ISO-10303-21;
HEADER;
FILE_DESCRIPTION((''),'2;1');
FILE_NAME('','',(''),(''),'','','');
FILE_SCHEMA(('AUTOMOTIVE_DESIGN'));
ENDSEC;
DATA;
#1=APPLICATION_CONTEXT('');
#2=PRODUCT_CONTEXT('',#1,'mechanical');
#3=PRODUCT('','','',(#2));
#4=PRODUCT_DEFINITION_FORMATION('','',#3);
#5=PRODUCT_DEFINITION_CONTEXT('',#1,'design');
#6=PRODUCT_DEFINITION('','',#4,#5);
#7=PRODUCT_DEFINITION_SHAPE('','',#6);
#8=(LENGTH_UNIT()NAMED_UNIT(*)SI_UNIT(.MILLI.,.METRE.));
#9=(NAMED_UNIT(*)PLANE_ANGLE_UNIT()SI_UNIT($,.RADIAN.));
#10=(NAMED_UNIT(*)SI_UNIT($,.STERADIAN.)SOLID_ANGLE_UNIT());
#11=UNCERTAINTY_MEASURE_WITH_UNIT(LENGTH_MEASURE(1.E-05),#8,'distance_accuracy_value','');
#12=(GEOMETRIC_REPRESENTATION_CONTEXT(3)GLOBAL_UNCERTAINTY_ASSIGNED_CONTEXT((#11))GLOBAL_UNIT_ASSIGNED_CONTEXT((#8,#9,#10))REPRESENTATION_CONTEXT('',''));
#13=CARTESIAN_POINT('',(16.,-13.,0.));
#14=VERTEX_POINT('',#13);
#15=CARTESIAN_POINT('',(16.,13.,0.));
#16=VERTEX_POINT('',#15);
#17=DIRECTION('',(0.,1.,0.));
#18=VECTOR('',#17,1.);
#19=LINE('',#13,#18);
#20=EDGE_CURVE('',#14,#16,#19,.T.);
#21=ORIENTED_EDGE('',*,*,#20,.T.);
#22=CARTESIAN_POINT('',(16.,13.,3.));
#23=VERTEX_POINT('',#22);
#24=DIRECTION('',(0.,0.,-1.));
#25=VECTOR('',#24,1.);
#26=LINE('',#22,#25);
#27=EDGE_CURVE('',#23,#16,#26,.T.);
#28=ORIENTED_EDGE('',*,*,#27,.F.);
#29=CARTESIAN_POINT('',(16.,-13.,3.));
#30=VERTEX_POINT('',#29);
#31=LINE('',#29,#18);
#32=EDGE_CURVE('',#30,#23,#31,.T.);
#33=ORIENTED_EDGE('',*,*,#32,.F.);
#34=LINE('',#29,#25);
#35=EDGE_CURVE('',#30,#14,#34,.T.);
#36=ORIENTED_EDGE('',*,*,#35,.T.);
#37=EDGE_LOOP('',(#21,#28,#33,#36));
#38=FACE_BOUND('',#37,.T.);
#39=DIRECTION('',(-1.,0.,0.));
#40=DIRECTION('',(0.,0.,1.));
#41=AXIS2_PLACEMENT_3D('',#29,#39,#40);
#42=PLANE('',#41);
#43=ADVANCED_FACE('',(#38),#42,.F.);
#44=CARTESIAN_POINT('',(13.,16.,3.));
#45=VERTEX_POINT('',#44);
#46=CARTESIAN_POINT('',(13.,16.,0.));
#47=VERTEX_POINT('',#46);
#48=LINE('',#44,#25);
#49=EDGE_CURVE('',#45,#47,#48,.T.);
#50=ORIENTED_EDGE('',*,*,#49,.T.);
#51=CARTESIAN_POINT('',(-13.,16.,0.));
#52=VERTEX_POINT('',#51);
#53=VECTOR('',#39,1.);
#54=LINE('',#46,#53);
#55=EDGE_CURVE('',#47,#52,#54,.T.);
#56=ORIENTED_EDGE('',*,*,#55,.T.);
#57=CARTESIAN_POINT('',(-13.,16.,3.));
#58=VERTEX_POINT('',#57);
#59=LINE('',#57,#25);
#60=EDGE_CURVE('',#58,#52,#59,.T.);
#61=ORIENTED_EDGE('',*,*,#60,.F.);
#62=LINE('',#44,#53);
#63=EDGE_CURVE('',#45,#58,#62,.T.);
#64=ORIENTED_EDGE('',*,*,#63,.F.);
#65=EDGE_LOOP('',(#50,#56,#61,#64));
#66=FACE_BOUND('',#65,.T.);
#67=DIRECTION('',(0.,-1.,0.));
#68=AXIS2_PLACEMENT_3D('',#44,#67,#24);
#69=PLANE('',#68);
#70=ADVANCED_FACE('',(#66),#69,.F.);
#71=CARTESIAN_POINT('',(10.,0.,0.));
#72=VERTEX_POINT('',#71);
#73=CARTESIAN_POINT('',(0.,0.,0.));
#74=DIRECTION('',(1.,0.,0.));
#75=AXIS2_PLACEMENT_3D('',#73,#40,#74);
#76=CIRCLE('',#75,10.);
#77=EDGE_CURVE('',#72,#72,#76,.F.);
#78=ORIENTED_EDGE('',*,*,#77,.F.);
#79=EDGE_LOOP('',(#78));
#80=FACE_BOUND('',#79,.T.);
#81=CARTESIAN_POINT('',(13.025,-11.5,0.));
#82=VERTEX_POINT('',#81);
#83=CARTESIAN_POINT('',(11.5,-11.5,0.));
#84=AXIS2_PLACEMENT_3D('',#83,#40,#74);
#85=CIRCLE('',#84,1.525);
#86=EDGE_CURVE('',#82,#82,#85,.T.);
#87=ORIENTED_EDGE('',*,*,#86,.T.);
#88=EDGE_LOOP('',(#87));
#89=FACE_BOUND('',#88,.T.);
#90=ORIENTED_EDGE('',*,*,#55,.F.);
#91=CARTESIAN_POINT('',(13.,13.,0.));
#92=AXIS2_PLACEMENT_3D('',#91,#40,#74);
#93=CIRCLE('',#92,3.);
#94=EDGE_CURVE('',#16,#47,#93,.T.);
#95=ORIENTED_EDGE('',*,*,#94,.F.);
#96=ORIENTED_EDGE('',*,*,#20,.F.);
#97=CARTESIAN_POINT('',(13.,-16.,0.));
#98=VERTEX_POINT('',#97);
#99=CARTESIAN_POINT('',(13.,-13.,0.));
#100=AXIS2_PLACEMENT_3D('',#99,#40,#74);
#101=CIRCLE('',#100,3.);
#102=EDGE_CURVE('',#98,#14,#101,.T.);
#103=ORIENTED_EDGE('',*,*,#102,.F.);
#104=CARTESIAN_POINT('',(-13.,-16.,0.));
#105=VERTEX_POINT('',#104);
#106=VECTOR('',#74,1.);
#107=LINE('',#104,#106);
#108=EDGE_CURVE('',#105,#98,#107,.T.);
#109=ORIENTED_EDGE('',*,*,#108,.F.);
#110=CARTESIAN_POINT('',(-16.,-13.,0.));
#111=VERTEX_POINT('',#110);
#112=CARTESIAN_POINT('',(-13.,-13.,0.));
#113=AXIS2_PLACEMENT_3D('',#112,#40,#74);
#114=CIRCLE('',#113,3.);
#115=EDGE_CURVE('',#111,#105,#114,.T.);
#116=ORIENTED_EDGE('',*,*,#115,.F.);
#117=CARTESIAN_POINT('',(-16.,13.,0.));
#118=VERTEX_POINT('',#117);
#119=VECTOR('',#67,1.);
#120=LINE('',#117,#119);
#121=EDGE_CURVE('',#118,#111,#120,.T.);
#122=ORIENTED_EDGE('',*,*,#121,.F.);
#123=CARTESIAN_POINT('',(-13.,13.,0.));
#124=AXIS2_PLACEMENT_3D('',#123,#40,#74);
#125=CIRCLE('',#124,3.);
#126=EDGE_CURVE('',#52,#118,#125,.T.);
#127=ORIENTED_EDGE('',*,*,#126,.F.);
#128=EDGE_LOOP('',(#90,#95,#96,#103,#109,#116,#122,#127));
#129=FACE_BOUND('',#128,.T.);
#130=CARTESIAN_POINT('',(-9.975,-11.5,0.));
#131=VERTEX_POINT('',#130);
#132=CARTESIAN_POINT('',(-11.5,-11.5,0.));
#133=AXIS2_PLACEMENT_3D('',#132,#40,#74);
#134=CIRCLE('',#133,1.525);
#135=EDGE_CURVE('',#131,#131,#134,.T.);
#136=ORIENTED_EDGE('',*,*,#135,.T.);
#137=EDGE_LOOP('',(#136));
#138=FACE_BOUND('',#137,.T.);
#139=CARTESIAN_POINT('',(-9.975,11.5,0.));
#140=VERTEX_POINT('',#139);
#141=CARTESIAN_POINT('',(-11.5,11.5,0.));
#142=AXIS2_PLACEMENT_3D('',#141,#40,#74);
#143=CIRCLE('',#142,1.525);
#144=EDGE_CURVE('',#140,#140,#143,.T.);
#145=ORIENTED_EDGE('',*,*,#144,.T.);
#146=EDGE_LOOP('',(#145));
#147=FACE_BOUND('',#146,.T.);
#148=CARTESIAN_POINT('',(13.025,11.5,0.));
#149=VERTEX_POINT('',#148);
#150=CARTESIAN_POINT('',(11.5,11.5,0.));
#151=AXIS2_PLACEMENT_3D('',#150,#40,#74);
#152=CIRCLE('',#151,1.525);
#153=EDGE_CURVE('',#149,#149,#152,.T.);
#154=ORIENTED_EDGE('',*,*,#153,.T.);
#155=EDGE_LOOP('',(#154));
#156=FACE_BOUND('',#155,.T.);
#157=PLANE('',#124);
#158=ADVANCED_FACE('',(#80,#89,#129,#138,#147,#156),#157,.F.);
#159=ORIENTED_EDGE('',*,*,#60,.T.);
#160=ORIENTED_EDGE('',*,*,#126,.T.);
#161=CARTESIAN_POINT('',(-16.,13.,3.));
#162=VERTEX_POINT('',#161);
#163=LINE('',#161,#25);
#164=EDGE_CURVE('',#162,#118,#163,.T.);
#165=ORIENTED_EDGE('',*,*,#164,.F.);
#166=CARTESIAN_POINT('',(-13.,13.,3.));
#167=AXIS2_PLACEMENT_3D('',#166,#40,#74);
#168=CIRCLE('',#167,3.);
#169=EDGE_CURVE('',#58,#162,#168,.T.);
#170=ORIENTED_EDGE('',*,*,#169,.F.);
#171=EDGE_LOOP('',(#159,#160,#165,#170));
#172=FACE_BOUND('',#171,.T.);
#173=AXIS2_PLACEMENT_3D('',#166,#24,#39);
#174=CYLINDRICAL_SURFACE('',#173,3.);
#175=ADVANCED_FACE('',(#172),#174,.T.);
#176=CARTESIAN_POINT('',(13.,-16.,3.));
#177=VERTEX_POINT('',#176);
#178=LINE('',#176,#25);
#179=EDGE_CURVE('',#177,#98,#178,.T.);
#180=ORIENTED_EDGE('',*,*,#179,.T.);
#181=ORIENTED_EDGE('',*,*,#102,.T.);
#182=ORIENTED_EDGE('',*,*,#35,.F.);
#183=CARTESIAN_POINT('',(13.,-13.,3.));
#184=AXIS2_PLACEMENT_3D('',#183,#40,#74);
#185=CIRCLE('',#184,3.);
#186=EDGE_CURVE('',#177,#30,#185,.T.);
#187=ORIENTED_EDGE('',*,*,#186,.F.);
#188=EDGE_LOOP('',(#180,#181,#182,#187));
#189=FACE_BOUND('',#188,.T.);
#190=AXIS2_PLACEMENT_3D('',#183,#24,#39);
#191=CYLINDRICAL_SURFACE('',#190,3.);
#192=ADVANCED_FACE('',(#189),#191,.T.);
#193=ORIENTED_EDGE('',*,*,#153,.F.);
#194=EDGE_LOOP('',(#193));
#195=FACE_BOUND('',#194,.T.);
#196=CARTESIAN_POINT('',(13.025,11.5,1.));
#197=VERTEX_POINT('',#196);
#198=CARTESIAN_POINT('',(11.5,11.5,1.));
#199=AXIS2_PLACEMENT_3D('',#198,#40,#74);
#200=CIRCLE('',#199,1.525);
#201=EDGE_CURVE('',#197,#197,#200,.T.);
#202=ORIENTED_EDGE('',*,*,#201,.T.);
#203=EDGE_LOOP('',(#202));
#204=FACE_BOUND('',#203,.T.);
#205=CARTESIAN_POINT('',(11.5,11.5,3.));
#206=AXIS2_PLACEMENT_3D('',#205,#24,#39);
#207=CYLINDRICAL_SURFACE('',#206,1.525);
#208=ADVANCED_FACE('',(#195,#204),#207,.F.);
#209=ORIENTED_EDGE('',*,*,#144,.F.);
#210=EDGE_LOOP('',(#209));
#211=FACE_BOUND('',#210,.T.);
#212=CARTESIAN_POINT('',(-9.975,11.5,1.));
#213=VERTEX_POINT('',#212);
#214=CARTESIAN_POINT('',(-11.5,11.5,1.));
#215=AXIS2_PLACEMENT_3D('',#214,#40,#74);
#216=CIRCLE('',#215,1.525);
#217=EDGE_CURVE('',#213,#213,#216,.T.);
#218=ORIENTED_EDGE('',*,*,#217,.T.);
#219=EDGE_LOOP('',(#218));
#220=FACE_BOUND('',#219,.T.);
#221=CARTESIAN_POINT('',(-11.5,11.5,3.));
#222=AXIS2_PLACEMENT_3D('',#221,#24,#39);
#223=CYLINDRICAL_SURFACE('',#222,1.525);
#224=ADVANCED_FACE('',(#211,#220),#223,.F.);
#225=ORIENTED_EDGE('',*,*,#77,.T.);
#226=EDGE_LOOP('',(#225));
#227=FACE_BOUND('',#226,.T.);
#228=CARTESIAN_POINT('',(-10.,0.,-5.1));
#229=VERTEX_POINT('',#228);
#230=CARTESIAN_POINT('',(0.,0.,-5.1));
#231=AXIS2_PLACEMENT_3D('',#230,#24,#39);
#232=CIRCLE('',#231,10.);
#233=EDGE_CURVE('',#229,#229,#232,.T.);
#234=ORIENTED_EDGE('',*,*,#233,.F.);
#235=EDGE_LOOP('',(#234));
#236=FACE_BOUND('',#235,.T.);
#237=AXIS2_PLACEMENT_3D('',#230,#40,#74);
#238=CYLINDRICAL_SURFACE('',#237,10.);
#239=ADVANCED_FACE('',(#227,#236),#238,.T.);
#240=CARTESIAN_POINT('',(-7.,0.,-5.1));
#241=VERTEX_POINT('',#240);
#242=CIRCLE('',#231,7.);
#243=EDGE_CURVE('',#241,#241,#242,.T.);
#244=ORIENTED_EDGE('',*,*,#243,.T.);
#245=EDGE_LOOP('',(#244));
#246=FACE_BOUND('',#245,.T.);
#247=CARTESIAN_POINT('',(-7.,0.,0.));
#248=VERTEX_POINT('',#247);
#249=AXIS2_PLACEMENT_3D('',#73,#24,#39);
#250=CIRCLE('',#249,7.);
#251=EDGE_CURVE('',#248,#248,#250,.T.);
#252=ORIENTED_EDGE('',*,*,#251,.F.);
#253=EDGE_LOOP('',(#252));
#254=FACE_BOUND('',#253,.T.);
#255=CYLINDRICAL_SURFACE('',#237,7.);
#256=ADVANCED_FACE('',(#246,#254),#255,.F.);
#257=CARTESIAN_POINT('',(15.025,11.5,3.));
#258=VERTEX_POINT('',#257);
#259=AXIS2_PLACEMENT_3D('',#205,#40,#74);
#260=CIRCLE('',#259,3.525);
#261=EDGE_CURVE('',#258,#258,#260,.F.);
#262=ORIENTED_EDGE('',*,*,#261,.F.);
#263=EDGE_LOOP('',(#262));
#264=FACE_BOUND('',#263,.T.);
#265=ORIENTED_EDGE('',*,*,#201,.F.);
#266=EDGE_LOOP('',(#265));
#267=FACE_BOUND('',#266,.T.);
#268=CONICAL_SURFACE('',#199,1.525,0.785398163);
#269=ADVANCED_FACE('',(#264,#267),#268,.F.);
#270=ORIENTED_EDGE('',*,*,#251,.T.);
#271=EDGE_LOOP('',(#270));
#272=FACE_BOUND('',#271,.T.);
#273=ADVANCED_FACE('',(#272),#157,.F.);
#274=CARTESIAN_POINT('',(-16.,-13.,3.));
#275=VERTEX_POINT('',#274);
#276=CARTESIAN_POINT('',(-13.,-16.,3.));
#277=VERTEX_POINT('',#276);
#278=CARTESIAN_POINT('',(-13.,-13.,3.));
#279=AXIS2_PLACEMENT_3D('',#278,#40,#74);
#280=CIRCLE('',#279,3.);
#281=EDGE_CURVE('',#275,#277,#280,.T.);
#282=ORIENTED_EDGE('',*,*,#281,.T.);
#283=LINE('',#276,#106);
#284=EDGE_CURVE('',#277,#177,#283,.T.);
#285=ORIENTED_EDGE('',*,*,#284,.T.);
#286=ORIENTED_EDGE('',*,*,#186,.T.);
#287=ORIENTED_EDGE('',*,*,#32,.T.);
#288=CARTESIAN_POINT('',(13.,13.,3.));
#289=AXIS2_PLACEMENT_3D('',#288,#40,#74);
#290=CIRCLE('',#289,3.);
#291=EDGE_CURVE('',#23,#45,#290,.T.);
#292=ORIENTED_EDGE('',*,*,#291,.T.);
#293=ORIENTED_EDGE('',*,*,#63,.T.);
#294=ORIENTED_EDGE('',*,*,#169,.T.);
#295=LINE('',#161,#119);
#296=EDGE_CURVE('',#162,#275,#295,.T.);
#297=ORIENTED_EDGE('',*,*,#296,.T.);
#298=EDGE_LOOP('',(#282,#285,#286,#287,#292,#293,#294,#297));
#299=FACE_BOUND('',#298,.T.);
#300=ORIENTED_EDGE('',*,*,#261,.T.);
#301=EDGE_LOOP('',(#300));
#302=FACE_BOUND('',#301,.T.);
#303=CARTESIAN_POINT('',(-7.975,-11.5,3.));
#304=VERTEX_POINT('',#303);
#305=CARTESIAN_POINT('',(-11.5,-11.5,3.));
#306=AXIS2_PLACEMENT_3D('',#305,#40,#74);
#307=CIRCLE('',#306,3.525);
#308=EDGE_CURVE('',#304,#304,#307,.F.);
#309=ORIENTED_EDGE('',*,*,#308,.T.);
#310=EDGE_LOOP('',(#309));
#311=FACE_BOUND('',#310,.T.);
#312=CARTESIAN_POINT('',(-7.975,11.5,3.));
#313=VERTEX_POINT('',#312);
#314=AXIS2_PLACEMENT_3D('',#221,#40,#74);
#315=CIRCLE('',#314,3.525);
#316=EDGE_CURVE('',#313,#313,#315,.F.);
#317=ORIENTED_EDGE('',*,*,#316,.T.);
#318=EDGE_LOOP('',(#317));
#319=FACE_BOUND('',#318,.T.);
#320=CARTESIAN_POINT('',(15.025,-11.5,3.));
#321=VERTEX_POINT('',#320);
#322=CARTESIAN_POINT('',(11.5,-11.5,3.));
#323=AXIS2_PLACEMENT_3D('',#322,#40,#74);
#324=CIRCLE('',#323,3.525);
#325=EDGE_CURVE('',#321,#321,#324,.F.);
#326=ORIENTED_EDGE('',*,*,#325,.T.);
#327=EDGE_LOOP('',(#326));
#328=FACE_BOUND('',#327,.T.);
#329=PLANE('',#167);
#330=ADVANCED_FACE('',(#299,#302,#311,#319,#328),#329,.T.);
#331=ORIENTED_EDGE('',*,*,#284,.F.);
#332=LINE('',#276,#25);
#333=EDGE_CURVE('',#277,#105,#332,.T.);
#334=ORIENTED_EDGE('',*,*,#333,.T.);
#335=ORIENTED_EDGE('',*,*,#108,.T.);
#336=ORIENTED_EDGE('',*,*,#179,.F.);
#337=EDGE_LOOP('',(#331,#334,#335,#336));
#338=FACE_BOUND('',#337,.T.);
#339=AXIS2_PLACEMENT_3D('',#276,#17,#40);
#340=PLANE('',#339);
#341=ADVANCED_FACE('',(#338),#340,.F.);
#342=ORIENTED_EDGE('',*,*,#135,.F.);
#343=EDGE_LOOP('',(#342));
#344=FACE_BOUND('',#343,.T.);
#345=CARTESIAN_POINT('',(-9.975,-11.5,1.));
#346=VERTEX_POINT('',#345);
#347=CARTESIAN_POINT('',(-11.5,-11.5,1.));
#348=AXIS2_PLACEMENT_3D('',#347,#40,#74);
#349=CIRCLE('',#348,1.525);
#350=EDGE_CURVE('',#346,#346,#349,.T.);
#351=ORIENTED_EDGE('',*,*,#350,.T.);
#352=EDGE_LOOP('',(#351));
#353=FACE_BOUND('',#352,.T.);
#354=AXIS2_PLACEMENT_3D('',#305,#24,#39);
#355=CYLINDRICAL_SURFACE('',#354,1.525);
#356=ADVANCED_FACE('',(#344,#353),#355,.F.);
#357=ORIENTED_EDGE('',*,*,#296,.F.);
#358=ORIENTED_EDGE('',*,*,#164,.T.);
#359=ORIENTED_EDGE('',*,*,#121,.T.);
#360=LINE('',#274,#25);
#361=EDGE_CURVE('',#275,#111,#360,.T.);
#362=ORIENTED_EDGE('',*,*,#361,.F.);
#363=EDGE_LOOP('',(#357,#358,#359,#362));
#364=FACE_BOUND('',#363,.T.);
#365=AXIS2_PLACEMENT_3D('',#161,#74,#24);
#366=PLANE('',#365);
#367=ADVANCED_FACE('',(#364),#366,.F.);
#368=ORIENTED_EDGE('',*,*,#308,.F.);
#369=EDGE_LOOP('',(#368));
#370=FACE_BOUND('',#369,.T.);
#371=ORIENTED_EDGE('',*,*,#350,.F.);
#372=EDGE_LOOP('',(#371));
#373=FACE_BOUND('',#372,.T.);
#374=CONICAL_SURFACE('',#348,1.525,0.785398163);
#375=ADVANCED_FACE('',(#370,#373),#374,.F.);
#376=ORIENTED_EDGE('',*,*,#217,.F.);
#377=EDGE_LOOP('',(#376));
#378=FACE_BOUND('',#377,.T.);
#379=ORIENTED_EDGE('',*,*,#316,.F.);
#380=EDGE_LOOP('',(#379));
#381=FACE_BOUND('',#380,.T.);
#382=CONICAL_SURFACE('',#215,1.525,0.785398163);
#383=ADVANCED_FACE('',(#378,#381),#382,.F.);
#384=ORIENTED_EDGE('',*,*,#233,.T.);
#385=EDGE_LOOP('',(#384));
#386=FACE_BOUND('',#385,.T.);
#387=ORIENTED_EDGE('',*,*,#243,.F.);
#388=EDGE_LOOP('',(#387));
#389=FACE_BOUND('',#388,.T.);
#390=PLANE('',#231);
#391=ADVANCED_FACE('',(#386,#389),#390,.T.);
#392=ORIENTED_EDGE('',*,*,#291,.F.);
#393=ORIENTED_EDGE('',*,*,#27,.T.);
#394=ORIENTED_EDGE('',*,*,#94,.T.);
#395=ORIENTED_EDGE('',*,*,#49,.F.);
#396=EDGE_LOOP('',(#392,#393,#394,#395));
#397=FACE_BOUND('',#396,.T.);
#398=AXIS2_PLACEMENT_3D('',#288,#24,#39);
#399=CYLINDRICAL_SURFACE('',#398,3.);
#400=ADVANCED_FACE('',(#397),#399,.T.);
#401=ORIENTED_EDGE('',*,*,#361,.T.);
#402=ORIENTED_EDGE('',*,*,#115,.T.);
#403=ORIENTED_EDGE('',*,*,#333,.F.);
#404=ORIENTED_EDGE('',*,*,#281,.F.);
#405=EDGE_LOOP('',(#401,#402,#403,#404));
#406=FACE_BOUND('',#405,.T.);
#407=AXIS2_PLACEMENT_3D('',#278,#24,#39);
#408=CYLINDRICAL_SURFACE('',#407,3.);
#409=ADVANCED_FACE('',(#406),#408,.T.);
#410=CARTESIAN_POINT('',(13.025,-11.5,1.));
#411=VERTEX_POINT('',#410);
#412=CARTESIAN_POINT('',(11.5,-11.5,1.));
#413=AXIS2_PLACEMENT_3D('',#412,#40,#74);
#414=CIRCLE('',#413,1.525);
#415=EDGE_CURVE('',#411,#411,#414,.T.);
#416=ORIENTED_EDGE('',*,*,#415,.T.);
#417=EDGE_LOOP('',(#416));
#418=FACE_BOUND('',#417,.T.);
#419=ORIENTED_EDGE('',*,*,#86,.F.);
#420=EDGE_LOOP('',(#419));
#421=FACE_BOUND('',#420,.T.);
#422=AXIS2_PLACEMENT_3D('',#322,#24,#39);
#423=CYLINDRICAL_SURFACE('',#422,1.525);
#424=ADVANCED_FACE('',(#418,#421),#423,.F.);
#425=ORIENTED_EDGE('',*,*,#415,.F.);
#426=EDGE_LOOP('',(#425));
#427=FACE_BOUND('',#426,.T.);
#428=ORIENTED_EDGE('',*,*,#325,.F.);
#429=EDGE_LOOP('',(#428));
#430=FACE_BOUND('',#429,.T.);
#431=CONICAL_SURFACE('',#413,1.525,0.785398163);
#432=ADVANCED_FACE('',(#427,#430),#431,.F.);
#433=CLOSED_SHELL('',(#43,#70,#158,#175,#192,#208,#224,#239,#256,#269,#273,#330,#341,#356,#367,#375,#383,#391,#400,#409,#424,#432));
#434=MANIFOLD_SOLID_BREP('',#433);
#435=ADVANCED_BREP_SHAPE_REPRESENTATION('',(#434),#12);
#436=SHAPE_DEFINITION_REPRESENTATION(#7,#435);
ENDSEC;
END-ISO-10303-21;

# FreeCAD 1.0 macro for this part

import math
import FreeCAD as App
import Part
import Sketcher
Q = App.Units.Quantity


def edges_at(feature, points):
    """Names of the edges that pass closest to the given points."""
    edges = feature.Shape.Edges
    near = lambda p: min(range(len(edges)), key=lambda i: edges[i].distToShape(Part.Vertex(*p))[0])
    return sorted({f"Edge{near(p) + 1}" for p in points})

doc = App.newDocument("Part")
body = doc.addObject("PartDesign::Body", "Body")

# Sketch on XY plane
sketch1 = body.newObject("Sketcher::SketchObject", "Sketch")
sketch1.AttachmentSupport = (doc.getObject("XY_Plane"), [""])
sketch1.MapMode = "FlatFace"
sketch1.addGeometry(Part.LineSegment(App.Vector(13, 16, 0), App.Vector(-13, 16, 0)), False)
sketch1.addGeometry(Part.ArcOfCircle(Part.Circle(App.Vector(-13, 13, 0), App.Vector(0, 0, 1), 3), math.radians(90), math.radians(180)), False)
sketch1.addGeometry(Part.LineSegment(App.Vector(-16, 13, 0), App.Vector(-16, -13, 0)), False)
sketch1.addGeometry(Part.ArcOfCircle(Part.Circle(App.Vector(-13, -13, 0), App.Vector(0, 0, 1), 3), math.radians(180), math.radians(270)), False)
sketch1.addGeometry(Part.LineSegment(App.Vector(-13, -16, 0), App.Vector(13, -16, 0)), False)
sketch1.addGeometry(Part.ArcOfCircle(Part.Circle(App.Vector(13, -13, 0), App.Vector(0, 0, 1), 3), math.radians(-90), math.radians(0)), False)
sketch1.addGeometry(Part.LineSegment(App.Vector(16, -13, 0), App.Vector(16, 13, 0)), False)
sketch1.addGeometry(Part.ArcOfCircle(Part.Circle(App.Vector(13, 13, 0), App.Vector(0, 0, 1), 3), math.radians(0), math.radians(90)), False)
sketch1.addGeometry(Part.Circle(App.Vector(-11.5, -11.5, 0), App.Vector(0, 0, 1), 1.525), False)
sketch1.addGeometry(Part.Circle(App.Vector(11.5, -11.5, 0), App.Vector(0, 0, 1), 1.525), False)
sketch1.addGeometry(Part.Circle(App.Vector(-11.5, 11.5, 0), App.Vector(0, 0, 1), 1.525), False)
sketch1.addGeometry(Part.Circle(App.Vector(11.5, 11.5, 0), App.Vector(0, 0, 1), 1.525), False)
sketch1.addConstraint(Sketcher.Constraint("Tangent", 0, 2, 1, 1))
sketch1.addConstraint(Sketcher.Constraint("Tangent", 1, 2, 2, 1))
sketch1.addConstraint(Sketcher.Constraint("Tangent", 2, 2, 3, 1))
sketch1.addConstraint(Sketcher.Constraint("Tangent", 3, 2, 4, 1))
sketch1.addConstraint(Sketcher.Constraint("Tangent", 4, 2, 5, 1))
sketch1.addConstraint(Sketcher.Constraint("Tangent", 5, 2, 6, 1))
sketch1.addConstraint(Sketcher.Constraint("Tangent", 6, 2, 7, 1))
sketch1.addConstraint(Sketcher.Constraint("Tangent", 7, 2, 0, 1))
sketch1.addConstraint(Sketcher.Constraint("Horizontal", 0))
sketch1.addConstraint(Sketcher.Constraint("Vertical", 2))
sketch1.addConstraint(Sketcher.Constraint("Horizontal", 4))
sketch1.addConstraint(Sketcher.Constraint("Vertical", 6))
sketch1.addConstraint(Sketcher.Constraint("Equal", 1, 3))
sketch1.addConstraint(Sketcher.Constraint("Equal", 3, 5))
sketch1.addConstraint(Sketcher.Constraint("Equal", 5, 7))
sketch1.addConstraint(Sketcher.Constraint("Equal", 8, 9))
sketch1.addConstraint(Sketcher.Constraint("Equal", 9, 10))
sketch1.addConstraint(Sketcher.Constraint("Equal", 10, 11))
sketch1.addConstraint(Sketcher.Constraint("Symmetric", 1, 3, 5, 3, -1, 1))
sketch1.addConstraint(Sketcher.Constraint("Symmetric", 9, 3, 10, 3, -1, 1))
sketch1.addConstraint(Sketcher.Constraint("Symmetric", 8, 3, 11, 3, -1, 1))
sketch1.addConstraint(Sketcher.Constraint("Symmetric", 8, 3, 9, 3, -2))
sketch1.addConstraint(Sketcher.Constraint("Equal", 4, 2))
sketch1.addConstraint(Sketcher.Constraint("Radius", 1, Q("3 mm")))
sketch1.addConstraint(Sketcher.Constraint("Diameter", 8, Q("3.05 mm")))
sketch1.addConstraint(Sketcher.Constraint("DistanceX", 0, 2, 0, 1, Q("26 mm")))
sketch1.addConstraint(Sketcher.Constraint("DistanceX", 8, 3, 9, 3, Q("23 mm")))
sketch1.addConstraint(Sketcher.Constraint("DistanceY", 8, 3, 10, 3, Q("23 mm")))
pad1 = body.newObject("PartDesign::Pad", "Pad")
pad1.Profile = sketch1
pad1.Length = 3

# Sketch on XY plane
sketch2 = body.newObject("Sketcher::SketchObject", "Sketch001")
sketch2.AttachmentSupport = (doc.getObject("XY_Plane"), [""])
sketch2.MapMode = "FlatFace"
sketch2.addGeometry(Part.Circle(App.Vector(0, 0, 0), App.Vector(0, 0, 1), 10), False)
sketch2.addGeometry(Part.Circle(App.Vector(0, 0, 0), App.Vector(0, 0, 1), 7), False)
sketch2.addConstraint(Sketcher.Constraint("Coincident", 0, 3, -1, 1))
sketch2.addConstraint(Sketcher.Constraint("Coincident", 1, 3, -1, 1))
sketch2.addConstraint(Sketcher.Constraint("Diameter", 0, Q("20 mm")))
sketch2.addConstraint(Sketcher.Constraint("Diameter", 1, Q("14 mm")))
pad2 = body.newObject("PartDesign::Pad", "Pad001")
pad2.Profile = sketch2
pad2.Length = 5.1
pad2.Reversed = True
doc.recompute()

chamfer = body.newObject("PartDesign::Chamfer", "Chamfer")
chamfer.Base = (pad2, edges_at(pad2, [
    (-13.025, -11.5, 3),
    (9.975, -11.5, 3),
    (9.975, 11.5, 3),
    (-13.025, 11.5, 3),
]))
chamfer.Size = 2

doc.recompute()
